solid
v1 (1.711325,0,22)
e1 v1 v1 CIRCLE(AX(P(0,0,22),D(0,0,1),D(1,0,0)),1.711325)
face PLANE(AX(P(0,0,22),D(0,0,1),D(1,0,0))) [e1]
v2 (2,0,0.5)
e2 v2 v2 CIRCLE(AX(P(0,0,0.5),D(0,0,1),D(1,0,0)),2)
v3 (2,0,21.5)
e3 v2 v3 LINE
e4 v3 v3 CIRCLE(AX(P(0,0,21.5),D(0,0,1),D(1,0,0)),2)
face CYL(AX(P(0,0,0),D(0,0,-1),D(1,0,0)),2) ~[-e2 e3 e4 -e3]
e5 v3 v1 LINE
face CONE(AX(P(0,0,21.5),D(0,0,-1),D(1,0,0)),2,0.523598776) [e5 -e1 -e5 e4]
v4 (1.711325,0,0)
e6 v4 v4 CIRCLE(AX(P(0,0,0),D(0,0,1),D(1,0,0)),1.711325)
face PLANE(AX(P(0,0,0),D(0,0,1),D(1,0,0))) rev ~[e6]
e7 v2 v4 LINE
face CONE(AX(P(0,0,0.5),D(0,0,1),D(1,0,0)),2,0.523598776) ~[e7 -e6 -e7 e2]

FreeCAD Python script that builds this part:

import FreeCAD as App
import Part
import Sketcher

V = App.Vector
Q = App.Units.Quantity


def edges_at(feature, points):
    """Names of the edges that pass closest to the given points."""
    edges = feature.Shape.Edges
    near = lambda p: min(range(len(edges)), key=lambda i: edges[i].distToShape(Part.Vertex(*p))[0])
    return sorted({f"Edge{near(p) + 1}" for p in points})

doc = App.newDocument("Part")
body = doc.addObject("PartDesign::Body", "Body")

# Sketch on XY plane
sketch1 = doc.addObject("Sketcher::SketchObject", "Sketch")
body.addObject(sketch1)
sketch1.AttachmentSupport = (doc.XY_Plane, [""])
sketch1.MapMode = "FlatFace"
sketch1.addGeometry(Part.Circle(V(0, 0, 0), V(0, 0, 1), 2), False)
sketch1.addConstraint([
    Sketcher.Constraint("Coincident", 0, 3, -1, 1),
    Sketcher.Constraint("Diameter", 0, Q("4 mm")),
])
pad1 = doc.addObject("PartDesign::Pad", "Pad")
body.addObject(pad1)
pad1.Profile = sketch1
pad1.Length = 22
doc.recompute()

chamfer = doc.addObject("PartDesign::Chamfer", "Chamfer")
body.addObject(chamfer)
chamfer.Base = (pad1, edges_at(pad1, [(-2, 0, 22), (-2, 0, 0)]))
chamfer.ChamferType = "Distance and Angle"
chamfer.Size = 0.5
chamfer.Angle = 30

doc.recompute()
